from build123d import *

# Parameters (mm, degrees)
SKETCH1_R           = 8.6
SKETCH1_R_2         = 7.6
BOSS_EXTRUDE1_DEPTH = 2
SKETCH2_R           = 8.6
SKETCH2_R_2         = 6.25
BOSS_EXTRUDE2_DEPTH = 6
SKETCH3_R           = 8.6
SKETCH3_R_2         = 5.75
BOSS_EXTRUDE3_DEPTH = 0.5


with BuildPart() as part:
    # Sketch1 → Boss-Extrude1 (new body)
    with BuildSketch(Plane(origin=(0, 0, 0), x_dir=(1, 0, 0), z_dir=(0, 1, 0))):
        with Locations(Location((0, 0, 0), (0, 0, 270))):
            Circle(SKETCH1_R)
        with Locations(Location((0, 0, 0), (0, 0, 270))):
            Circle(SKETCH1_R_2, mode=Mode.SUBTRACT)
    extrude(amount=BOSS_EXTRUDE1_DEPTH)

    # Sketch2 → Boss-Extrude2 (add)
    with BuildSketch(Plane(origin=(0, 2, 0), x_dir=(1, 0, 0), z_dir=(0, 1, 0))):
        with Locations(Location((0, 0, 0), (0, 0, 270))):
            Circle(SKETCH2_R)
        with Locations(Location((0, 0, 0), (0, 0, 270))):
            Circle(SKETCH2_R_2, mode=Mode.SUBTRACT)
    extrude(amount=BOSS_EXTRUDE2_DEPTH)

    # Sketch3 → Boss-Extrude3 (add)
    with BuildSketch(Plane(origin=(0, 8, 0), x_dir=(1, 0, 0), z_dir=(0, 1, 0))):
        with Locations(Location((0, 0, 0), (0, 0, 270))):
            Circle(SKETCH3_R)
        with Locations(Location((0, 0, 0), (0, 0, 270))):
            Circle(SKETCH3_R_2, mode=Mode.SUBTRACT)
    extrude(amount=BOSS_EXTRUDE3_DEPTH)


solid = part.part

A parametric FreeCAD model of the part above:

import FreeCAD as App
import Part
import Sketcher
Q = App.Units.Quantity

doc = App.newDocument("Part")
params = doc.addObject("Spreadsheet::Sheet", "Params")
for row, (alias, value) in enumerate([
    ("sketch1_diameter", "17.2 mm"),
    ("sketch1_diameter2", "15.2 mm"),
    ("pad1_length", "2 mm"),
    ("sketch2_diameter", "17.2 mm"),
    ("sketch2_diameter2", "12.5 mm"),
    ("pad2_length", "6 mm"),
    ("sketch3_diameter", "17.2 mm"),
    ("sketch3_diameter2", "11.5 mm"),
    ("pad3_length", "0.5 mm"),
], start=1):
    params.set(f"A{row}", alias)
    params.set(f"B{row}", "=" + value)
    params.setAlias(f"B{row}", alias)

body = doc.addObject("PartDesign::Body", "Body")

sketch1 = doc.addObject("Sketcher::SketchObject", "Sketch")
body.addObject(sketch1)
sketch1.AttachmentSupport = (doc.XZ_Plane, [""])
sketch1.MapMode = "FlatFace"
sketch1.addGeometry([
    Part.Circle(App.Vector(0, 0, 0), App.Vector(0, 0, 1), 9),
    Part.Circle(App.Vector(0, 0, 0), App.Vector(0, 0, 1), 8),
], False)
sketch1.addConstraint([
    Sketcher.Constraint("Coincident", 0, 3, -1, 1),
    Sketcher.Constraint("Coincident", 1, 3, -1, 1),
    Sketcher.Constraint("Diameter", 0, Q("17.2 mm")),
    Sketcher.Constraint("Diameter", 1, Q("15.2 mm")),
])
sketch1.setExpression("Constraints[2]", "Params.sketch1_diameter")
sketch1.setExpression("Constraints[3]", "Params.sketch1_diameter2")
pad1 = doc.addObject("PartDesign::Pad", "Pad")
body.addObject(pad1)
pad1.Profile = sketch1
pad1.setExpression("Length", "Params.pad1_length")
pad1.Reversed = True

sketch2 = doc.addObject("Sketcher::SketchObject", "Sketch001")
body.addObject(sketch2)
sketch2.AttachmentSupport = (doc.XZ_Plane, [""])
sketch2.MapMode = "FlatFace"
sketch2.AttachmentOffset = App.Placement(App.Vector(0, 0, -2), App.Rotation())
sketch2.addGeometry([
    Part.Circle(App.Vector(0, 0, 0), App.Vector(0, 0, 1), 9),
    Part.Circle(App.Vector(0, 0, 0), App.Vector(0, 0, 1), 6),
], False)
sketch2.addConstraint([
    Sketcher.Constraint("Coincident", 0, 3, -1, 1),
    Sketcher.Constraint("Coincident", 1, 3, -1, 1),
    Sketcher.Constraint("Diameter", 0, Q("17.2 mm")),
    Sketcher.Constraint("Diameter", 1, Q("12.5 mm")),
])
sketch2.setExpression("Constraints[2]", "Params.sketch2_diameter")
sketch2.setExpression("Constraints[3]", "Params.sketch2_diameter2")
pad2 = doc.addObject("PartDesign::Pad", "Pad001")
body.addObject(pad2)
pad2.Profile = sketch2
pad2.setExpression("Length", "Params.pad2_length")
pad2.Reversed = True

sketch3 = doc.addObject("Sketcher::SketchObject", "Sketch002")
body.addObject(sketch3)
sketch3.AttachmentSupport = (doc.XZ_Plane, [""])
sketch3.MapMode = "FlatFace"
sketch3.AttachmentOffset = App.Placement(App.Vector(0, 0, -8), App.Rotation())
sketch3.addGeometry([
    Part.Circle(App.Vector(0, 0, 0), App.Vector(0, 0, 1), 9),
    Part.Circle(App.Vector(0, 0, 0), App.Vector(0, 0, 1), 6),
], False)
sketch3.addConstraint([
    Sketcher.Constraint("Coincident", 0, 3, -1, 1),
    Sketcher.Constraint("Coincident", 1, 3, -1, 1),
    Sketcher.Constraint("Diameter", 0, Q("17.2 mm")),
    Sketcher.Constraint("Diameter", 1, Q("11.5 mm")),
])
sketch3.setExpression("Constraints[2]", "Params.sketch3_diameter")
sketch3.setExpression("Constraints[3]", "Params.sketch3_diameter2")
pad3 = doc.addObject("PartDesign::Pad", "Pad002")
body.addObject(pad3)
pad3.Profile = sketch3
pad3.setExpression("Length", "Params.pad3_length")
pad3.Reversed = True

doc.recompute()
